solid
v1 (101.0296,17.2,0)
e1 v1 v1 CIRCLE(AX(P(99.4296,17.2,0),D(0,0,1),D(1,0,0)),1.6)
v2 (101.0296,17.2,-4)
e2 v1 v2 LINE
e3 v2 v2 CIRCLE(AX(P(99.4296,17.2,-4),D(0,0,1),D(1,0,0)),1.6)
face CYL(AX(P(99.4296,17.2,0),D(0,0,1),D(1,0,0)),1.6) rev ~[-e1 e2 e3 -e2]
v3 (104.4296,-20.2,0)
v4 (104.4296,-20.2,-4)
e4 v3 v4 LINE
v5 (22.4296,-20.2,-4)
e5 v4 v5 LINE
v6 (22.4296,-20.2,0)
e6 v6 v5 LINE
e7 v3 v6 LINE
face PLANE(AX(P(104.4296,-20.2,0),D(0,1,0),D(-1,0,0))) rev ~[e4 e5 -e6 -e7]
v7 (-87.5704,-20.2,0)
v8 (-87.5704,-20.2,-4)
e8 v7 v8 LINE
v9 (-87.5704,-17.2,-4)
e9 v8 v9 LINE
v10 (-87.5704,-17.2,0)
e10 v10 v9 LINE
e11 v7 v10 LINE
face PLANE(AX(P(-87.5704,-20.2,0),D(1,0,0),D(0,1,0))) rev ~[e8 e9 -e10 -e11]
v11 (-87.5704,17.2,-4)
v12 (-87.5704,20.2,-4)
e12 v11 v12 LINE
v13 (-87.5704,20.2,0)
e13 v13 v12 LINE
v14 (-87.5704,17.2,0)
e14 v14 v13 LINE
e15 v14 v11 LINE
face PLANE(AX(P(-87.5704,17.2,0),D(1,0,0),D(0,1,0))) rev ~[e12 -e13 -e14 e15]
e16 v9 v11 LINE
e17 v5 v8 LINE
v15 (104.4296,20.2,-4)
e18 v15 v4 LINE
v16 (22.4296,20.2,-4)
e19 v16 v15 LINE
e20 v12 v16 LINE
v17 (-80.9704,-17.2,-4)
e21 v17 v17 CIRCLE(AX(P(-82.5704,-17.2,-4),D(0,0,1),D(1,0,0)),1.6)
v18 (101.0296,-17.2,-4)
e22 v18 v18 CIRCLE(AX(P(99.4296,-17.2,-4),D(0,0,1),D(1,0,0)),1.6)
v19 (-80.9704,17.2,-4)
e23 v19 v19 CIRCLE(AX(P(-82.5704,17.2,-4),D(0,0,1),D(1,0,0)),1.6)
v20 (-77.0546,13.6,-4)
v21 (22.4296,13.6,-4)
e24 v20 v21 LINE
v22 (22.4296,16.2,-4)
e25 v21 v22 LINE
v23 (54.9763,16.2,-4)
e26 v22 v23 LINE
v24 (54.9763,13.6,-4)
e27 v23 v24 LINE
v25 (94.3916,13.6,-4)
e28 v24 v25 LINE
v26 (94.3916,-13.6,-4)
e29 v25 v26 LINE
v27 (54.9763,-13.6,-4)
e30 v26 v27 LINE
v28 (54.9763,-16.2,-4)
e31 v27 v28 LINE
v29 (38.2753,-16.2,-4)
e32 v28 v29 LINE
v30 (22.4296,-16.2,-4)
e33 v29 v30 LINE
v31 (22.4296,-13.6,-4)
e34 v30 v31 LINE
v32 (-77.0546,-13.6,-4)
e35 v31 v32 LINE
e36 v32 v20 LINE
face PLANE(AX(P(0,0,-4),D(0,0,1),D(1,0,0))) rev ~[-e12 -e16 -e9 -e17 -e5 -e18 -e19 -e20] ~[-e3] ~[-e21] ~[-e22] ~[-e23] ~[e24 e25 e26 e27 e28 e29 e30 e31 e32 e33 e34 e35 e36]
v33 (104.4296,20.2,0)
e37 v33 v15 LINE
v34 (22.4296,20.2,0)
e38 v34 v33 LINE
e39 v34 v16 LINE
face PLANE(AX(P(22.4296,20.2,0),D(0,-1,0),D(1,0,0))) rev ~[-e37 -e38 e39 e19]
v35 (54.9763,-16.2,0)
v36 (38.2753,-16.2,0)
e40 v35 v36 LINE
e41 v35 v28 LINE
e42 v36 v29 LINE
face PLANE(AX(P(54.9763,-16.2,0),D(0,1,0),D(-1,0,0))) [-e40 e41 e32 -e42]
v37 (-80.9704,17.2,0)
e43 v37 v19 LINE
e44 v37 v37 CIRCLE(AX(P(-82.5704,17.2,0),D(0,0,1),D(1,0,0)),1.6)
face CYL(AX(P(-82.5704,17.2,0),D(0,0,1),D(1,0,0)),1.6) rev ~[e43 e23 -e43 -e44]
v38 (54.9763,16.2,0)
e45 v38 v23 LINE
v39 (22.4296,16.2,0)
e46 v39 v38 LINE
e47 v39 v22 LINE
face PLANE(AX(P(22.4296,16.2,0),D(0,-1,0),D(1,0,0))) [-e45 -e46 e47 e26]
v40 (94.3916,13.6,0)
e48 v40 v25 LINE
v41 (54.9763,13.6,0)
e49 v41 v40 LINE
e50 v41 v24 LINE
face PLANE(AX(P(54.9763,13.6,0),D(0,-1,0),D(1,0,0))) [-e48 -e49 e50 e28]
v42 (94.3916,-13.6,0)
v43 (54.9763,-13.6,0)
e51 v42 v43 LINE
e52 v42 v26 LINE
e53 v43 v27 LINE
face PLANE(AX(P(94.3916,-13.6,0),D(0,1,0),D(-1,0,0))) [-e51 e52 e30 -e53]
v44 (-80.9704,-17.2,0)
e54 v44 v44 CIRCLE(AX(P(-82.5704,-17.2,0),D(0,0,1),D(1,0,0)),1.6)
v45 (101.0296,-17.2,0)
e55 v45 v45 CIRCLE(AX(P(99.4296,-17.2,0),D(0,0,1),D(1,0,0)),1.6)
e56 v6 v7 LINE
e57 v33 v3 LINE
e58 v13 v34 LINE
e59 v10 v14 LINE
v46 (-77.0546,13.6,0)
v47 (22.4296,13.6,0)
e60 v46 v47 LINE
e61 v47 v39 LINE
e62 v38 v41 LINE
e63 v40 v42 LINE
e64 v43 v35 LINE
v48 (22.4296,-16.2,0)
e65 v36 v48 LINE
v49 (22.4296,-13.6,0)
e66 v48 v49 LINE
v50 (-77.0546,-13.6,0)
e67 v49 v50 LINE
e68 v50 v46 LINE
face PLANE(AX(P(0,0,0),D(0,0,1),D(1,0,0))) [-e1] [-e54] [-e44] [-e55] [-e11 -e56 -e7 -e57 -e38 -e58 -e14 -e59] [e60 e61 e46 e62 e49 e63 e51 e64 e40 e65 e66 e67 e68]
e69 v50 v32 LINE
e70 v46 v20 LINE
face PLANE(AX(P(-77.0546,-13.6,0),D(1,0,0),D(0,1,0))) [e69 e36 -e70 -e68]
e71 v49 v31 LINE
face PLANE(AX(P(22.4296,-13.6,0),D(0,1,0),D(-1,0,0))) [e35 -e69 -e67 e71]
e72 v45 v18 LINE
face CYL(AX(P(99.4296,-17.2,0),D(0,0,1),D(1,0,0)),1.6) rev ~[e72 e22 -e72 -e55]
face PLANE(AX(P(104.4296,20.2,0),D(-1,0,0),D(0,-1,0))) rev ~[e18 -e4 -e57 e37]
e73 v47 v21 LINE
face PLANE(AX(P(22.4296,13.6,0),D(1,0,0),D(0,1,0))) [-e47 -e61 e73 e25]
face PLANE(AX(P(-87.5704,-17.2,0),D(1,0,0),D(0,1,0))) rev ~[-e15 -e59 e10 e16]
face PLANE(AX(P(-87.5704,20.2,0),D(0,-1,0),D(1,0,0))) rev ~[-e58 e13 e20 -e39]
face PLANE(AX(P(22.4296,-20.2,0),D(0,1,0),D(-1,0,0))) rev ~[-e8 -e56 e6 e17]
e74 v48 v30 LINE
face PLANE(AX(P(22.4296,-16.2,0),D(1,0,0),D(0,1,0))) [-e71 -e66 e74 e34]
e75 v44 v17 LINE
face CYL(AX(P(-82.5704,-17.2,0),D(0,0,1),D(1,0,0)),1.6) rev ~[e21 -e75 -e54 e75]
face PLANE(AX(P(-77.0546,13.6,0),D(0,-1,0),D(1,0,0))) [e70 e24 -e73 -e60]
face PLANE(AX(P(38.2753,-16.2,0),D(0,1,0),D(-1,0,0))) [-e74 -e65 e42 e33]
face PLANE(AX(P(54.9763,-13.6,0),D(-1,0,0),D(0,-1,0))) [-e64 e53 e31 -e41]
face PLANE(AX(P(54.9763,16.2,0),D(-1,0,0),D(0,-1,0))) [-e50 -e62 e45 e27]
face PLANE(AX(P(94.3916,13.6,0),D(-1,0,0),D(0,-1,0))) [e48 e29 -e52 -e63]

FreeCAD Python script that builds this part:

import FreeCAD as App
import Part
import Sketcher


def add_polygon(sketch, points):
    """Adds a closed chain of lines whose ends are joined by coincident constraints."""
    first, n = sketch.GeometryCount, len(points)
    for a, b in zip(points, points[1:] + points[:1]):
        sketch.addGeometry(Part.LineSegment(App.Vector(*a, 0), App.Vector(*b, 0)), False)
    for i in range(n):
        sketch.addConstraint(Sketcher.Constraint("Coincident", first + i, 2, first + (i + 1) % n, 1))

doc = App.newDocument("Part")
body = doc.addObject("PartDesign::Body", "Body")

sketch1 = body.newObject("Sketcher::SketchObject", "Sketch")
sketch1.AttachmentSupport = (doc.getObject("XY_Plane"), [""])
sketch1.MapMode = "FlatFace"
add_polygon(sketch1, [(-87.5704, -20.2), (104.4296, -20.2), (104.4296, 20.2), (-87.5704, 20.2)])
sketch1.addGeometry(Part.Circle(App.Vector(-82.5704, -17.2, 0), App.Vector(0, 0, 1), 1.6), False)
sketch1.addGeometry(Part.Circle(App.Vector(99.4296, -17.2, 0), App.Vector(0, 0, 1), 1.6), False)
sketch1.addGeometry(Part.Circle(App.Vector(-82.5704, 17.2, 0), App.Vector(0, 0, 1), 1.6), False)
add_polygon(sketch1, [(-77.0546, -13.6), (-77.0546, 13.6), (22.4296, 13.6), (22.4296, 16.2), (54.9763, 16.2), (54.9763, 13.6), (94.3916, 13.6), (94.3916, -13.6), (54.9763, -13.6), (54.9763, -16.2), (22.4296, -16.2), (22.4296, -13.6)])
sketch1.addGeometry(Part.Circle(App.Vector(99.4296, 17.2, 0), App.Vector(0, 0, 1), 1.6), False)
sketch1.addConstraint(Sketcher.Constraint("Horizontal", 0))
sketch1.addConstraint(Sketcher.Constraint("Vertical", 1))
sketch1.addConstraint(Sketcher.Constraint("Horizontal", 2))
sketch1.addConstraint(Sketcher.Constraint("Vertical", 3))
sketch1.addConstraint(Sketcher.Constraint("Vertical", 7))
sketch1.addConstraint(Sketcher.Constraint("Horizontal", 8))
sketch1.addConstraint(Sketcher.Constraint("Vertical", 9))
sketch1.addConstraint(Sketcher.Constraint("Horizontal", 10))
sketch1.addConstraint(Sketcher.Constraint("Vertical", 11))
sketch1.addConstraint(Sketcher.Constraint("Horizontal", 12))
sketch1.addConstraint(Sketcher.Constraint("Vertical", 13))
sketch1.addConstraint(Sketcher.Constraint("Horizontal", 14))
sketch1.addConstraint(Sketcher.Constraint("Vertical", 15))
sketch1.addConstraint(Sketcher.Constraint("Horizontal", 16))
sketch1.addConstraint(Sketcher.Constraint("Vertical", 17))
sketch1.addConstraint(Sketcher.Constraint("Horizontal", 18))
sketch1.addConstraint(Sketcher.Constraint("Equal", 4, 5))
sketch1.addConstraint(Sketcher.Constraint("Equal", 5, 6))
sketch1.addConstraint(Sketcher.Constraint("Equal", 6, 19))
sketch1.addConstraint(Sketcher.Constraint("Symmetric", 4, 3, 6, 3, -1))
sketch1.addConstraint(Sketcher.Constraint("Symmetric", 5, 3, 19, 3, -1))
sketch1.addConstraint(Sketcher.Constraint("Symmetric", 11, 2, 14, 2, -1))
sketch1.addConstraint(Sketcher.Constraint("Symmetric", 9, 2, 16, 2, -1))
sketch1.addConstraint(Sketcher.Constraint("Horizontal", 4, 3, 5, 3))
sketch1.addConstraint(Sketcher.Constraint("Horizontal", 8, 2, 11, 2))
sketch1.addConstraint(Sketcher.Constraint("Horizontal", 14, 2, 17, 2))
sketch1.addConstraint(Sketcher.Constraint("Diameter", 4, 3.2))
sketch1.addConstraint(Sketcher.Constraint("DistanceY", 1, 1, 1, 2, 40.4))
sketch1.addConstraint(Sketcher.Constraint("DistanceX", 5, 3, 0, 2, 5.0))
sketch1.addConstraint(Sketcher.Constraint("DistanceY", 0, 2, 5, 3, 3.0))
sketch1.addConstraint(Sketcher.Constraint("DistanceY", 19, 3, 1, 2, 3.0))
sketch1.addConstraint(Sketcher.Constraint("DistanceX", 2, 2, 6, 3, 5.0))
sketch1.addConstraint(Sketcher.Constraint("DistanceX", 8, 2, 1, 2, 82.0))
sketch1.addConstraint(Sketcher.Constraint("DistanceY", 9, 2, 19, 3, 1.0))
sketch1.addConstraint(Sketcher.Constraint("DistanceX", 0, 1, 0, 2, 192.0))
sketch1.addConstraint(Sketcher.Constraint("DistanceY", 7, 1, 7, 2, 27.2))
sketch1.addConstraint(Sketcher.Constraint("DistanceX", 8, 1, 8, 2, 99.4842))
sketch1.addConstraint(Sketcher.Constraint("DistanceX", 10, 1, 10, 2, 32.5467))
sketch1.addConstraint(Sketcher.Constraint("DistanceX", 12, 1, 12, 2, 39.4153))
sketch1.addConstraint(Sketcher.Constraint("DistanceX", 4, 3, -1, 1, 82.5704))
pad1 = body.newObject("PartDesign::Pad", "Pad")
pad1.Profile = sketch1
pad1.Length = 4
pad1.Reversed = True

doc.recompute()
